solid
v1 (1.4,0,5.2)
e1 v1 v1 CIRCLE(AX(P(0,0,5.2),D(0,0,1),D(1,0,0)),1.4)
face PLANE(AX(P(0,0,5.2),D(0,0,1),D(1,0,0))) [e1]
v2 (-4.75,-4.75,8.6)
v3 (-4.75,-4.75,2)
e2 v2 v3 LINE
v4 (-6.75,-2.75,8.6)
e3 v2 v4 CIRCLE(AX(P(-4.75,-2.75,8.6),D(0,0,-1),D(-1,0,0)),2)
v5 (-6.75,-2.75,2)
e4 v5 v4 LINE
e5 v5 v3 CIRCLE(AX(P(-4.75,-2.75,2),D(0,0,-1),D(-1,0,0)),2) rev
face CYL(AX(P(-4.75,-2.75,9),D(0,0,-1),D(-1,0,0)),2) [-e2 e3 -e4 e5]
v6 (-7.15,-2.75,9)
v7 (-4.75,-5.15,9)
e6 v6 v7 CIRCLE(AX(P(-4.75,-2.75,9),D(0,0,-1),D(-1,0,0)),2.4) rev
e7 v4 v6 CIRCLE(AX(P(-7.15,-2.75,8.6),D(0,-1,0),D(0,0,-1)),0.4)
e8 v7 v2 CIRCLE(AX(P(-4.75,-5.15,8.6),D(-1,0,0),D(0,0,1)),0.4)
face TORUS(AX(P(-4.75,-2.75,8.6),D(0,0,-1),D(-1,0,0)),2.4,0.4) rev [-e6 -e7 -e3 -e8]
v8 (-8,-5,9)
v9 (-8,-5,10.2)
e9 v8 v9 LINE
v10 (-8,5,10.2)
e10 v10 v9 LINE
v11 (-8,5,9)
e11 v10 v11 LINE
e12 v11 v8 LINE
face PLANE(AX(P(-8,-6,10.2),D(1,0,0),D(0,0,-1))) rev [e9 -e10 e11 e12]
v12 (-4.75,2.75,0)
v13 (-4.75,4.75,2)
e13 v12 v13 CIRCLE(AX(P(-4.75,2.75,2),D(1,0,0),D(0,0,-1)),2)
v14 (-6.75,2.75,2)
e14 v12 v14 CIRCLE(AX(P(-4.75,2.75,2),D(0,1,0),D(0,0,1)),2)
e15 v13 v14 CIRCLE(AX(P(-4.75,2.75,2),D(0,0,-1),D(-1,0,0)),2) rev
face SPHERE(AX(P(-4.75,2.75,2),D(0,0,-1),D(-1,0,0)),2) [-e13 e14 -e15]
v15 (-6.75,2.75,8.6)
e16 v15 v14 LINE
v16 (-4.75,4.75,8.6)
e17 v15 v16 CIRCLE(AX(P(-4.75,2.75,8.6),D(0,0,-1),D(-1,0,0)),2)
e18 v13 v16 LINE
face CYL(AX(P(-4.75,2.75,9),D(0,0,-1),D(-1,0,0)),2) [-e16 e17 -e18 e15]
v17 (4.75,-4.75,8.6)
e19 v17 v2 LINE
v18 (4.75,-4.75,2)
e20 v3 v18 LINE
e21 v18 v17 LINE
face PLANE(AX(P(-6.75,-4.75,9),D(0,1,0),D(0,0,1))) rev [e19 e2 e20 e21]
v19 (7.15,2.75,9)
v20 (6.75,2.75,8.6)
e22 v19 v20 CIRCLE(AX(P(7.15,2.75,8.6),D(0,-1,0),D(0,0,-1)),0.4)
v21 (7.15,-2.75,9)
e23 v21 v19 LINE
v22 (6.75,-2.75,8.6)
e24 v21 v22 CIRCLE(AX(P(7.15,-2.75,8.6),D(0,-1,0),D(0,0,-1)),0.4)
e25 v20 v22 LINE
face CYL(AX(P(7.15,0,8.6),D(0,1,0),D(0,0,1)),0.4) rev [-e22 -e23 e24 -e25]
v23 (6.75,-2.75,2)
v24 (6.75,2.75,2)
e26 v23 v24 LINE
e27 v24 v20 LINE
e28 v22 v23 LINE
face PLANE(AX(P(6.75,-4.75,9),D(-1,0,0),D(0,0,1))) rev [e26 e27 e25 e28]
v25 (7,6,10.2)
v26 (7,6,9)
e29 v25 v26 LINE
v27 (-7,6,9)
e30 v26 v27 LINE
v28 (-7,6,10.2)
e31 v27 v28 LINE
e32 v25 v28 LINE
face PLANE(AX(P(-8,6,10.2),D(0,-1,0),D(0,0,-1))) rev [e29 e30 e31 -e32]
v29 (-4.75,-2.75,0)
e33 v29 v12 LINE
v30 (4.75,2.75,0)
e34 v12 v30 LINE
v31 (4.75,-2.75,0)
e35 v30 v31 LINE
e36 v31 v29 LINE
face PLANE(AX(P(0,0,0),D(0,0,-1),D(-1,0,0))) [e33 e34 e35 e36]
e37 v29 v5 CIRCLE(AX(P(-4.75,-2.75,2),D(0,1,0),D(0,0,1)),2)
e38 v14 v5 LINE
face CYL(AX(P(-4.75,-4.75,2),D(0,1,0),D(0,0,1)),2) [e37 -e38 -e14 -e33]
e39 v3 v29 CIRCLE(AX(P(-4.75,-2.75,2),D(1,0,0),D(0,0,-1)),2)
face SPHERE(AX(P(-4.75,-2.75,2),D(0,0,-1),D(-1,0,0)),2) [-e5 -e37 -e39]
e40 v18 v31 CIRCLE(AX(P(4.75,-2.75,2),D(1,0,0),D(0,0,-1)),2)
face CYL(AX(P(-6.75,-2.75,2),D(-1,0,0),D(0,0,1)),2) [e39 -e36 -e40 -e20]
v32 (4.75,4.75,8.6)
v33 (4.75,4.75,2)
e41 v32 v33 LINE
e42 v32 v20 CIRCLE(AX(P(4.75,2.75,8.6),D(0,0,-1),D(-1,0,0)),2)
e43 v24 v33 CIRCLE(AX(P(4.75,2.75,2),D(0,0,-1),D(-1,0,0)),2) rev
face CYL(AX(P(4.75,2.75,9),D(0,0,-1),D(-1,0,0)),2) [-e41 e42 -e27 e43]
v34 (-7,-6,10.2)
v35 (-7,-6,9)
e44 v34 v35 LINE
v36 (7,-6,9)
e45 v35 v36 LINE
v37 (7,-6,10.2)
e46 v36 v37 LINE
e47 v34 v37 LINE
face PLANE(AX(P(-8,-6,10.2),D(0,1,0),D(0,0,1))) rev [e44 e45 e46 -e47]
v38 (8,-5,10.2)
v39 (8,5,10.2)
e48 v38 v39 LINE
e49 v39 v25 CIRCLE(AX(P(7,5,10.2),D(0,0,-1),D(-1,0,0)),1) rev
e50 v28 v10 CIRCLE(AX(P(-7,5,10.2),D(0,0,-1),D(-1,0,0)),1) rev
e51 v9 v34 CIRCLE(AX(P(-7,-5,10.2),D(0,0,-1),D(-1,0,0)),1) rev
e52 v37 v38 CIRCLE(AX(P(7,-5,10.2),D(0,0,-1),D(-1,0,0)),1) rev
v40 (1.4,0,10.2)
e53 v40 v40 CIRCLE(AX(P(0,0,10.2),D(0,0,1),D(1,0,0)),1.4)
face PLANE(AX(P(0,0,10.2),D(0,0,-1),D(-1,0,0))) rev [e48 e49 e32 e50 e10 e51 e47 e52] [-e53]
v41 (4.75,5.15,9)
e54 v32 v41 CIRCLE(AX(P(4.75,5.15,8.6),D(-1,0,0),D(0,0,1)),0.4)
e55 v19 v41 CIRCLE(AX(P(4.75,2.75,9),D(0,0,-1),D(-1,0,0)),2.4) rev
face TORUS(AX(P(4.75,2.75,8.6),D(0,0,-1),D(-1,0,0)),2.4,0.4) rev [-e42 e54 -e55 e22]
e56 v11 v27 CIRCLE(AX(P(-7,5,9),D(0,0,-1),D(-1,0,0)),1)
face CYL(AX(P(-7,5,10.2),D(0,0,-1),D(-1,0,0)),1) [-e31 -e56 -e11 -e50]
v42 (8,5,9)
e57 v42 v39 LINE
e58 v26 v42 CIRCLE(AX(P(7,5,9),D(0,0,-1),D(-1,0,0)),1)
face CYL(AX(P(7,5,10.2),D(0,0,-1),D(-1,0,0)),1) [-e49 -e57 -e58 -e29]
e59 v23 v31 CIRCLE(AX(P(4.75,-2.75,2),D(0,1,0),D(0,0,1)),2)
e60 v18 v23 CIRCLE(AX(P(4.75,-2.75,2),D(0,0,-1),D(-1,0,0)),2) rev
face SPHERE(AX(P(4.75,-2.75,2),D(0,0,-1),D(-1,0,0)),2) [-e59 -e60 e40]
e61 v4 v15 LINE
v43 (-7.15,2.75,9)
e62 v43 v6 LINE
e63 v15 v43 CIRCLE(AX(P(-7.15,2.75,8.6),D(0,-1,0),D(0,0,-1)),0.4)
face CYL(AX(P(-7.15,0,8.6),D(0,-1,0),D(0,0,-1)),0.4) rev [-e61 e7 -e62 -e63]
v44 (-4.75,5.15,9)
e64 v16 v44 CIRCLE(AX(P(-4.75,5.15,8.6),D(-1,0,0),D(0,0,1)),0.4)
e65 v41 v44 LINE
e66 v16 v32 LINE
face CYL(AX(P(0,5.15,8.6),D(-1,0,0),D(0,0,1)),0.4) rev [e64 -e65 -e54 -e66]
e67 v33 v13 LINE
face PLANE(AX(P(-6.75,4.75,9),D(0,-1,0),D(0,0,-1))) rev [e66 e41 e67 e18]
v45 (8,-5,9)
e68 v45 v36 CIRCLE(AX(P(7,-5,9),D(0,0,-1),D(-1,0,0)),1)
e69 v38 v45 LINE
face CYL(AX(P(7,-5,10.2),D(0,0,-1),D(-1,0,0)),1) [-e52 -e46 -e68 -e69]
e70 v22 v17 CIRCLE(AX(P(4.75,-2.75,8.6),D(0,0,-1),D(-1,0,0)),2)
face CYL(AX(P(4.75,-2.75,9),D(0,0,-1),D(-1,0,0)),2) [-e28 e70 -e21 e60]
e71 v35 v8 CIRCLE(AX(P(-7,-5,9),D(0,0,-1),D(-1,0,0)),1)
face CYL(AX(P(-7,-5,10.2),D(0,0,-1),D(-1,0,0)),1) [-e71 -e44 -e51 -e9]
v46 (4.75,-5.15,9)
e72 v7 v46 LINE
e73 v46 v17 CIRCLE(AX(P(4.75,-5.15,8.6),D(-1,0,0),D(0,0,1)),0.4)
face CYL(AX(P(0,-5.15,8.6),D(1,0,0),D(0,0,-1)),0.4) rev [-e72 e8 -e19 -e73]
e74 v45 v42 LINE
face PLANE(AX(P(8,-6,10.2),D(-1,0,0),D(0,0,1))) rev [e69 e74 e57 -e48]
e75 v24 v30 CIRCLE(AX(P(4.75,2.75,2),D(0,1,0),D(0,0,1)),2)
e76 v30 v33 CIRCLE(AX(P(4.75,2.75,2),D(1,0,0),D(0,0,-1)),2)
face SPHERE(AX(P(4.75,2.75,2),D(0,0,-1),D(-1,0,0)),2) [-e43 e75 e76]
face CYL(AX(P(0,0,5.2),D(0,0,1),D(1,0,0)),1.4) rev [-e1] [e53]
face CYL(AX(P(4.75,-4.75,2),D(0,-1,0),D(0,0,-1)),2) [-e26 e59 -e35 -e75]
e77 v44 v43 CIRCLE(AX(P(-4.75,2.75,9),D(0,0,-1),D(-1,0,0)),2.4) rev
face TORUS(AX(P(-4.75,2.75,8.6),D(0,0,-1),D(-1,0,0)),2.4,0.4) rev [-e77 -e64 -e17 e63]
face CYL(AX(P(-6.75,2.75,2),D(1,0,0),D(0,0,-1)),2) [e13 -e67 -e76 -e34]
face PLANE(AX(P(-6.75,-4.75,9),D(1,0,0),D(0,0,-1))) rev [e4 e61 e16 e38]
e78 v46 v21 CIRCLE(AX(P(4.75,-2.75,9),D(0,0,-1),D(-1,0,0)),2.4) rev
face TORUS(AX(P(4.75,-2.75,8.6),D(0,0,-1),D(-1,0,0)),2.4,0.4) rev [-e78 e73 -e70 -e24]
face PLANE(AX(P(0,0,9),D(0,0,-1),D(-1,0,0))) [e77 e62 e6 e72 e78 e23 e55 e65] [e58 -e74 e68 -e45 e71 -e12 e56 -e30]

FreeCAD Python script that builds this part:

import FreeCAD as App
import Part
import Sketcher
from FreeCAD import Vector


def edges_at(feature, points):
    """Names of the edges that pass closest to the given points."""
    edges = feature.Shape.Edges
    near = lambda p: min(range(len(edges)), key=lambda i: edges[i].distToShape(Part.Vertex(*p))[0])
    return sorted({f"Edge{near(p) + 1}" for p in points})

doc = App.newDocument("Part")
params = doc.addObject("Spreadsheet::Sheet", "Params")
for row, (alias, value) in enumerate([
    ("sketch1_width", "13.5 mm"),
    ("sketch1_height", "9.5 mm"),
    ("pad1_length", "9 mm"),
    ("sketch2_width", "16 mm"),
    ("sketch2_height", "12 mm"),
    ("pad2_length", "1.2 mm"),
    ("sketch3_diameter", "2.8 mm"),
    ("pocket1_length", "5 mm"),
    ("fillet_radius", "2 mm"),
    ("fillet2_radius", "2 mm"),
    ("fillet3_radius", "0.4 mm"),
    ("fillet4_radius", "1 mm"),
], start=1):
    params.set(f"A{row}", alias)
    params.set(f"B{row}", "=" + value)
    params.setAlias(f"B{row}", alias)

body = doc.addObject("PartDesign::Body", "Body")

sketch1 = body.newObject("Sketcher::SketchObject", "Sketch")
sketch1.AttachmentSupport = (doc.getObject("XY_Plane"), [""])
sketch1.MapMode = "FlatFace"
sketch1.addGeometry([
    Part.LineSegment(Vector(-6.75, 4.75, 0), Vector(-6.75, -4.75, 0)),
    Part.LineSegment(Vector(-6.75, -4.75, 0), Vector(6.75, -4.75, 0)),
    Part.LineSegment(Vector(6.75, -4.75, 0), Vector(6.75, 4.75, 0)),
    Part.LineSegment(Vector(6.75, 4.75, 0), Vector(-6.75, 4.75, 0)),
], False)
sketch1.addConstraint([
    Sketcher.Constraint("Coincident", 0, 2, 1, 1),
    Sketcher.Constraint("Coincident", 1, 2, 2, 1),
    Sketcher.Constraint("Coincident", 2, 2, 3, 1),
    Sketcher.Constraint("Coincident", 3, 2, 0, 1),
    Sketcher.Constraint("Vertical", 0),
    Sketcher.Constraint("Horizontal", 1),
    Sketcher.Constraint("Vertical", 2),
    Sketcher.Constraint("Horizontal", 3),
    Sketcher.Constraint("Symmetric", 0, 2, 2, 2, -1, 1),
    Sketcher.Constraint("DistanceX", 1, 1, 1, 2, 13.5),
    Sketcher.Constraint("DistanceY", 0, 2, 0, 1, 9.5),
])
sketch1.setExpression("Constraints[9]", "Params.sketch1_width")
sketch1.setExpression("Constraints[10]", "Params.sketch1_height")
pad1 = body.newObject("PartDesign::Pad", "Pad")
pad1.Profile = sketch1
pad1.setExpression("Length", "Params.pad1_length")

sketch2 = body.newObject("Sketcher::SketchObject", "Sketch001")
sketch2.AttachmentSupport = (doc.getObject("XY_Plane"), [""])
sketch2.MapMode = "FlatFace"
sketch2.AttachmentOffset = App.Placement(Vector(0, 0, 9), App.Rotation())
sketch2.addGeometry([
    Part.LineSegment(Vector(-8, 6, 0), Vector(-8, -6, 0)),
    Part.LineSegment(Vector(-8, -6, 0), Vector(8, -6, 0)),
    Part.LineSegment(Vector(8, -6, 0), Vector(8, 6, 0)),
    Part.LineSegment(Vector(8, 6, 0), Vector(-8, 6, 0)),
], False)
sketch2.addConstraint([
    Sketcher.Constraint("Coincident", 0, 2, 1, 1),
    Sketcher.Constraint("Coincident", 1, 2, 2, 1),
    Sketcher.Constraint("Coincident", 2, 2, 3, 1),
    Sketcher.Constraint("Coincident", 3, 2, 0, 1),
    Sketcher.Constraint("Vertical", 0),
    Sketcher.Constraint("Horizontal", 1),
    Sketcher.Constraint("Vertical", 2),
    Sketcher.Constraint("Horizontal", 3),
    Sketcher.Constraint("Symmetric", 0, 2, 2, 2, -1, 1),
    Sketcher.Constraint("DistanceX", 1, 1, 1, 2, 16.0),
    Sketcher.Constraint("DistanceY", 0, 2, 0, 1, 12.0),
])
sketch2.setExpression("Constraints[9]", "Params.sketch2_width")
sketch2.setExpression("Constraints[10]", "Params.sketch2_height")
pad2 = body.newObject("PartDesign::Pad", "Pad001")
pad2.Profile = sketch2
pad2.setExpression("Length", "Params.pad2_length")

sketch3 = body.newObject("Sketcher::SketchObject", "Sketch002")
sketch3.AttachmentSupport = (doc.getObject("XY_Plane"), [""])
sketch3.MapMode = "FlatFace"
sketch3.AttachmentOffset = App.Placement(Vector(0, 0, 10.2), App.Rotation())
sketch3.addGeometry(Part.Circle(Vector(0, 0, 0), Vector(0, 0, 1), 1.4), False)
sketch3.addConstraint([
    Sketcher.Constraint("Coincident", 0, 3, -1, 1),
    Sketcher.Constraint("Diameter", 0, 2.8),
])
sketch3.setExpression("Constraints[1]", "Params.sketch3_diameter")
pocket1 = body.newObject("PartDesign::Pocket", "Pocket")
pocket1.Profile = sketch3
pocket1.setExpression("Length", "Params.pocket1_length")
doc.recompute()

fillet = body.newObject("PartDesign::Fillet", "Fillet")
fillet.Base = (pocket1, edges_at(pocket1, [
    (6.75, -4.75, 4.5),
    (-6.75, -4.75, 4.5),
    (-6.75, 4.75, 4.5),
    (6.75, 4.75, 4.5),
]))
fillet.setExpression("Radius", "Params.fillet_radius")
doc.recompute()

fillet2 = body.newObject("PartDesign::Fillet", "Fillet001")
fillet2.Base = (fillet, edges_at(fillet, [
    (0, -4.75, 0),
    (6.75, 0, 0),
    (-6.75, 0, 0),
    (0, 4.75, 0),
    (-6.164, 4.164, 0),
    (6.164, 4.164, 0),
    (6.164, -4.164, 0),
    (-6.164, -4.164, 0),
]))
fillet2.setExpression("Radius", "Params.fillet2_radius")
doc.recompute()

fillet3 = body.newObject("PartDesign::Fillet", "Fillet002")
fillet3.Base = (fillet2, edges_at(fillet2, [
    (0, -4.75, 9),
    (-6.75, 0, 9),
    (6.75, 0, 9),
    (0, 4.75, 9),
    (-6.164, -4.164, 9),
    (6.164, -4.164, 9),
    (6.164, 4.164, 9),
    (-6.164, 4.164, 9),
]))
fillet3.setExpression("Radius", "Params.fillet3_radius")
doc.recompute()

fillet4 = body.newObject("PartDesign::Fillet", "Fillet003")
fillet4.Base = (fillet3, edges_at(fillet3, [
    (8, -6, 9.6),
    (8, 6, 9.6),
    (-8, 6, 9.6),
    (-8, -6, 9.6),
]))
fillet4.setExpression("Radius", "Params.fillet4_radius")

doc.recompute()
